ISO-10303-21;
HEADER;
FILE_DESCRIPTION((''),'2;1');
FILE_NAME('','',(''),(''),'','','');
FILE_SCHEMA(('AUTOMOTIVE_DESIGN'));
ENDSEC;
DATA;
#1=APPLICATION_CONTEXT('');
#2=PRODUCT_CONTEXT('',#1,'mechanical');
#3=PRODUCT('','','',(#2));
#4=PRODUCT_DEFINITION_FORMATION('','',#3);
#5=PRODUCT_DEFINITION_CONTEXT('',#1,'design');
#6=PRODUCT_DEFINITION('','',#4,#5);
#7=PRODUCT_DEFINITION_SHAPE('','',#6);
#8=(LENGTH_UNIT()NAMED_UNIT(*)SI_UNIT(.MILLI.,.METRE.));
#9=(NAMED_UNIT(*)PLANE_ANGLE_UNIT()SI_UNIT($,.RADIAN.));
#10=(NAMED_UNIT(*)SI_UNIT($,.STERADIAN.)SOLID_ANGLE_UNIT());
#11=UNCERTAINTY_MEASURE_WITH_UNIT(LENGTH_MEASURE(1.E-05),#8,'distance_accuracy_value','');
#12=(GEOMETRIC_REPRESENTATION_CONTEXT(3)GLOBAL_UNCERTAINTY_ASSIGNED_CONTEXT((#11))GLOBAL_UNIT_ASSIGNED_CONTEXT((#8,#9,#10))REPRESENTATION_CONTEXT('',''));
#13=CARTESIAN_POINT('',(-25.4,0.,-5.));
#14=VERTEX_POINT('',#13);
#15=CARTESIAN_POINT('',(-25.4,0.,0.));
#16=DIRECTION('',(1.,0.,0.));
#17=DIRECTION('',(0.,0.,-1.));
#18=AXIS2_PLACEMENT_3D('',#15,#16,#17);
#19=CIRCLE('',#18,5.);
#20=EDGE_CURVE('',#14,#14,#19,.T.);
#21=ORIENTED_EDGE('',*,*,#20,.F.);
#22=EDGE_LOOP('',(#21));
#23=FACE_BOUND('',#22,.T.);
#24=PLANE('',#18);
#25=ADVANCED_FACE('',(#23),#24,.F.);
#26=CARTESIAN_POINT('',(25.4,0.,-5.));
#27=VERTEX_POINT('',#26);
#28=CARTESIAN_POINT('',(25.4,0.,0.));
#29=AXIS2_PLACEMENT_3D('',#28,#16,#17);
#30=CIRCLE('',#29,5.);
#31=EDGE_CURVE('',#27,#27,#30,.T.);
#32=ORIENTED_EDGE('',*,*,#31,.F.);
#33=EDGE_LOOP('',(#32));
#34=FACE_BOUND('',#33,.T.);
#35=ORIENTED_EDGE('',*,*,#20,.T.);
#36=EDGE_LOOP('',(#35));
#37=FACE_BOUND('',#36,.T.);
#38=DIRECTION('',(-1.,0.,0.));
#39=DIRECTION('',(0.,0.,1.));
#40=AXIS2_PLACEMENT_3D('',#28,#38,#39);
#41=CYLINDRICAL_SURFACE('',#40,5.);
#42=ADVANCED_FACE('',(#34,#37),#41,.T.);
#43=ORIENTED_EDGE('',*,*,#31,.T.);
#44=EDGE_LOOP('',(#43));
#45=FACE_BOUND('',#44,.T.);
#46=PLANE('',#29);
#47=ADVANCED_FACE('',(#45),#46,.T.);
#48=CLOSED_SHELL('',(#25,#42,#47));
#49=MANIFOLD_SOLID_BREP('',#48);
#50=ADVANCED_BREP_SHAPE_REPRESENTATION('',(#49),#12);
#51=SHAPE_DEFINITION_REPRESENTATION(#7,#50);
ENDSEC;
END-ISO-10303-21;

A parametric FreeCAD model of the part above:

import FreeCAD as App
import Part
import Sketcher
from FreeCAD import Vector
Q = App.Units.Quantity

doc = App.newDocument("Part")
body = doc.addObject("PartDesign::Body", "Body")

# Sketch on YZ plane
sketch1 = body.newObject("Sketcher::SketchObject", "Sketch")
sketch1.AttachmentSupport = (doc.getObject("YZ_Plane"), [""])
sketch1.MapMode = "FlatFace"
sketch1.addGeometry(Part.Circle(Vector(0, 0, 0), Vector(0, 0, 1), 5), False)
sketch1.addConstraint(Sketcher.Constraint("Coincident", 0, 3, -1, 1))
sketch1.addConstraint(Sketcher.Constraint("Diameter", 0, Q("10 mm")))
pad1 = body.newObject("PartDesign::Pad", "Pad")
pad1.Profile = sketch1
pad1.Length = 50.8
pad1.Midplane = True

doc.recompute()
